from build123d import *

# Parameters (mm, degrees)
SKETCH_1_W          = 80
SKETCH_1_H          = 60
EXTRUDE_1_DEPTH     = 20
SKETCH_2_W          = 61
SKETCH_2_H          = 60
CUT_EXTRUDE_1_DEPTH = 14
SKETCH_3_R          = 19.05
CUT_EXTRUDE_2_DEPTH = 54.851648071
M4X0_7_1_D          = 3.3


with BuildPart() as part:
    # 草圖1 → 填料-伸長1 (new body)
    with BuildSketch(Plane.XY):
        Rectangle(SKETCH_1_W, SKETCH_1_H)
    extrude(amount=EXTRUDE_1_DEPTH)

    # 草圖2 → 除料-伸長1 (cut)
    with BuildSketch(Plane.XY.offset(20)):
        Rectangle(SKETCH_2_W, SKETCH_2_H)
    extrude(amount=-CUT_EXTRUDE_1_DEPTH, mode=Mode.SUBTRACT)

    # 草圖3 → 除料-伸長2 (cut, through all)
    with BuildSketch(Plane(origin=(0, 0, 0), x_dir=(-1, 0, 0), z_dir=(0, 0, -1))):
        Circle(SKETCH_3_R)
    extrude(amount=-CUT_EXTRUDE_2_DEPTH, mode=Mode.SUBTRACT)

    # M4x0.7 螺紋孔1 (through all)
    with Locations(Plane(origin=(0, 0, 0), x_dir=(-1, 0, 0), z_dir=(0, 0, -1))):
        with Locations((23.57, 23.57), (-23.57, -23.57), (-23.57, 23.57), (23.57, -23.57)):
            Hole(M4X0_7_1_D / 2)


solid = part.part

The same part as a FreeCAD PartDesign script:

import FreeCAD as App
import Part
import Sketcher
Q = App.Units.Quantity

doc = App.newDocument("Part")
body = doc.addObject("PartDesign::Body", "Body")

# Sketch on XY plane
sketch1 = body.newObject("Sketcher::SketchObject", "Sketch")
sketch1.AttachmentSupport = (doc.getObject("XY_Plane"), [""])
sketch1.MapMode = "FlatFace"
sketch1.addGeometry(Part.LineSegment(App.Vector(-40, 30, 0), App.Vector(-40, -30, 0)), False)
sketch1.addGeometry(Part.LineSegment(App.Vector(-40, -30, 0), App.Vector(40, -30, 0)), False)
sketch1.addGeometry(Part.LineSegment(App.Vector(40, -30, 0), App.Vector(40, 30, 0)), False)
sketch1.addGeometry(Part.LineSegment(App.Vector(40, 30, 0), App.Vector(-40, 30, 0)), False)
sketch1.addConstraint(Sketcher.Constraint("Coincident", 0, 2, 1, 1))
sketch1.addConstraint(Sketcher.Constraint("Coincident", 1, 2, 2, 1))
sketch1.addConstraint(Sketcher.Constraint("Coincident", 2, 2, 3, 1))
sketch1.addConstraint(Sketcher.Constraint("Coincident", 3, 2, 0, 1))
sketch1.addConstraint(Sketcher.Constraint("Vertical", 0))
sketch1.addConstraint(Sketcher.Constraint("Horizontal", 1))
sketch1.addConstraint(Sketcher.Constraint("Vertical", 2))
sketch1.addConstraint(Sketcher.Constraint("Horizontal", 3))
sketch1.addConstraint(Sketcher.Constraint("Symmetric", 0, 2, 2, 2, -1, 1))
sketch1.addConstraint(Sketcher.Constraint("DistanceX", 1, 1, 1, 2, Q("80 mm")))
sketch1.addConstraint(Sketcher.Constraint("DistanceY", 0, 2, 0, 1, Q("60 mm")))
pad1 = body.newObject("PartDesign::Pad", "Pad")
pad1.Profile = sketch1
pad1.Length = 20

# Sketch on XY plane
sketch2 = body.newObject("Sketcher::SketchObject", "Sketch001")
sketch2.AttachmentSupport = (doc.getObject("XY_Plane"), [""])
sketch2.MapMode = "FlatFace"
sketch2.AttachmentOffset = App.Placement(App.Vector(0, 0, 20), App.Rotation())
sketch2.addGeometry(Part.LineSegment(App.Vector(-30, 30, 0), App.Vector(-30, -30, 0)), False)
sketch2.addGeometry(Part.LineSegment(App.Vector(-30, -30, 0), App.Vector(30, -30, 0)), False)
sketch2.addGeometry(Part.LineSegment(App.Vector(30, -30, 0), App.Vector(30, 30, 0)), False)
sketch2.addGeometry(Part.LineSegment(App.Vector(30, 30, 0), App.Vector(-30, 30, 0)), False)
sketch2.addConstraint(Sketcher.Constraint("Coincident", 0, 2, 1, 1))
sketch2.addConstraint(Sketcher.Constraint("Coincident", 1, 2, 2, 1))
sketch2.addConstraint(Sketcher.Constraint("Coincident", 2, 2, 3, 1))
sketch2.addConstraint(Sketcher.Constraint("Coincident", 3, 2, 0, 1))
sketch2.addConstraint(Sketcher.Constraint("Vertical", 0))
sketch2.addConstraint(Sketcher.Constraint("Horizontal", 1))
sketch2.addConstraint(Sketcher.Constraint("Vertical", 2))
sketch2.addConstraint(Sketcher.Constraint("Horizontal", 3))
sketch2.addConstraint(Sketcher.Constraint("Symmetric", 0, 2, 2, 2, -1, 1))
sketch2.addConstraint(Sketcher.Constraint("DistanceX", 1, 1, 1, 2, Q("61 mm")))
sketch2.addConstraint(Sketcher.Constraint("DistanceY", 0, 2, 0, 1, Q("60 mm")))
pocket1 = body.newObject("PartDesign::Pocket", "Pocket")
pocket1.Profile = sketch2
pocket1.Length = 14

# Sketch on XY plane
sketch3 = body.newObject("Sketcher::SketchObject", "Sketch002")
sketch3.AttachmentSupport = (doc.getObject("XY_Plane"), [""])
sketch3.MapMode = "FlatFace"
sketch3.addGeometry(Part.Circle(App.Vector(0, 0, 0), App.Vector(0, 0, 1), 19), False)
sketch3.addConstraint(Sketcher.Constraint("Coincident", 0, 3, -1, 1))
sketch3.addConstraint(Sketcher.Constraint("Diameter", 0, Q("38.1 mm")))
pocket2 = body.newObject("PartDesign::Pocket", "Pocket001")
pocket2.Profile = sketch3
pocket2.Type = "ThroughAll"
pocket2.Reversed = True

# Sketch on XY plane
sketch4 = body.newObject("Sketcher::SketchObject", "Sketch003")
sketch4.AttachmentSupport = (doc.getObject("XY_Plane"), [""])
sketch4.MapMode = "FlatFace"
sketch4.addGeometry(Part.Circle(App.Vector(-23.6, 23.6, 0), App.Vector(0, 0, 1), 1.6), False)
sketch4.addGeometry(Part.Circle(App.Vector(23.6, -23.6, 0), App.Vector(0, 0, 1), 1.6), False)
sketch4.addGeometry(Part.Circle(App.Vector(23.6, 23.6, 0), App.Vector(0, 0, 1), 1.6), False)
sketch4.addGeometry(Part.Circle(App.Vector(-23.6, -23.6, 0), App.Vector(0, 0, 1), 1.6), False)
sketch4.addConstraint(Sketcher.Constraint("Equal", 0, 1))
sketch4.addConstraint(Sketcher.Constraint("Equal", 1, 2))
sketch4.addConstraint(Sketcher.Constraint("Equal", 2, 3))
sketch4.addConstraint(Sketcher.Constraint("Symmetric", 0, 3, 1, 3, -1, 1))
sketch4.addConstraint(Sketcher.Constraint("Symmetric", 2, 3, 3, 3, -1, 1))
sketch4.addConstraint(Sketcher.Constraint("Symmetric", 0, 3, 2, 3, -2))
sketch4.addConstraint(Sketcher.Constraint("Diameter", 0, Q("3.3 mm")))
sketch4.addConstraint(Sketcher.Constraint("DistanceX", 0, 3, -1, 1, Q("23.57 mm")))
sketch4.addConstraint(Sketcher.Constraint("DistanceY", -1, 1, 0, 3, Q("23.57 mm")))
doc.recompute()
hole = body.newObject("PartDesign::Hole", "Hole")
hole.Profile = sketch4
hole.ThreadType = "None"
hole.Diameter = 3.3
hole.DepthType = "ThroughAll"
hole.Reversed = True

doc.recompute()
